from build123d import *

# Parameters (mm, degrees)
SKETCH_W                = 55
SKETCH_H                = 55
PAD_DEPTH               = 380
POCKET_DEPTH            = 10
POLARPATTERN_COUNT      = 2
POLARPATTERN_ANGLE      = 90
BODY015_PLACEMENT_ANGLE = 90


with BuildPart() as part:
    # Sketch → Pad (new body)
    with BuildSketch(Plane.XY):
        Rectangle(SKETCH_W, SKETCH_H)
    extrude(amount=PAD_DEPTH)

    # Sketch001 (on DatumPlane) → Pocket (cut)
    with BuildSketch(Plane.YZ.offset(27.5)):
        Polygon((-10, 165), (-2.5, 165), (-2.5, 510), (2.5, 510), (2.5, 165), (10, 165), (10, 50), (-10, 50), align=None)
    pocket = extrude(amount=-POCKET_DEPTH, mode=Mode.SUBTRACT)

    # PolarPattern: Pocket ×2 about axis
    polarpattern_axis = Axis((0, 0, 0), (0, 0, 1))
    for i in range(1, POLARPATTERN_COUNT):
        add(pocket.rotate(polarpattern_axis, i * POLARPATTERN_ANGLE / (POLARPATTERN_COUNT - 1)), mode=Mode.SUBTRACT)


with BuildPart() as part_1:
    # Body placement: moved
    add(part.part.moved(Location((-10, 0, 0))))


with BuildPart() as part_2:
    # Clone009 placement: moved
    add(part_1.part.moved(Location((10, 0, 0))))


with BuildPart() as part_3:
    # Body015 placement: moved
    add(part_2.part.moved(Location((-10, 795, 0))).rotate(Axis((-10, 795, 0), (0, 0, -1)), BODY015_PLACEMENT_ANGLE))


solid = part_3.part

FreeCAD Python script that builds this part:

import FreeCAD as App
import Part
import Sketcher


def add_polygon(sketch, points):
    """Adds a closed chain of lines whose ends are joined by coincident constraints."""
    first, n = sketch.GeometryCount, len(points)
    for a, b in zip(points, points[1:] + points[:1]):
        sketch.addGeometry(Part.LineSegment(App.Vector(*a, 0), App.Vector(*b, 0)), False)
    for i in range(n):
        sketch.addConstraint(Sketcher.Constraint("Coincident", first + i, 2, first + (i + 1) % n, 1))

doc = App.newDocument("Part")
body = doc.addObject("PartDesign::Body", "Body")

# Sketch on XY plane
sketch1 = doc.addObject("Sketcher::SketchObject", "Sketch")
body.addObject(sketch1)
sketch1.AttachmentSupport = (doc.XY_Plane, [""])
sketch1.MapMode = "FlatFace"
add_polygon(sketch1, [(-28, 28), (-28, -28), (28, -28), (28, 28)])  # lines 0-3
sketch1.addConstraint(Sketcher.Constraint("Vertical", 0))
sketch1.addConstraint(Sketcher.Constraint("Horizontal", 1))
sketch1.addConstraint(Sketcher.Constraint("Vertical", 2))
sketch1.addConstraint(Sketcher.Constraint("Horizontal", 3))
sketch1.addConstraint(Sketcher.Constraint("Symmetric", 0, 2, 2, 2, -1, 1))
sketch1.addConstraint(Sketcher.Constraint("Equal", 3, 0))
sketch1.addConstraint(Sketcher.Constraint("DistanceX", 1, 1, 1, 2, 55.0))
pad1 = doc.addObject("PartDesign::Pad", "Pad")
body.addObject(pad1)
pad1.Profile = sketch1
pad1.Length = 380

# Sketch on YZ plane
sketch2 = doc.addObject("Sketcher::SketchObject", "Sketch001")
body.addObject(sketch2)
sketch2.AttachmentSupport = (doc.YZ_Plane, [""])
sketch2.MapMode = "FlatFace"
sketch2.AttachmentOffset = App.Placement(App.Vector(0, 0, 27.5), App.Rotation())
add_polygon(sketch2, [(-2, 165), (-10, 165), (-10, 50), (10, 50), (10, 165), (2, 165), (2, 510), (-2, 510)])  # lines 0-7
sketch2.addConstraint(Sketcher.Constraint("Horizontal", 0))
sketch2.addConstraint(Sketcher.Constraint("Vertical", 1))
sketch2.addConstraint(Sketcher.Constraint("Horizontal", 2))
sketch2.addConstraint(Sketcher.Constraint("Vertical", 3))
sketch2.addConstraint(Sketcher.Constraint("Horizontal", 4))
sketch2.addConstraint(Sketcher.Constraint("Vertical", 5))
sketch2.addConstraint(Sketcher.Constraint("Horizontal", 6))
sketch2.addConstraint(Sketcher.Constraint("Vertical", 7))
sketch2.addConstraint(Sketcher.Constraint("Symmetric", 0, 2, 3, 2, -2))
sketch2.addConstraint(Sketcher.Constraint("Equal", 0, 4))
sketch2.addConstraint(Sketcher.Constraint("DistanceX", 2, 1, 2, 2, 20.0))
sketch2.addConstraint(Sketcher.Constraint("DistanceX", 6, 2, 6, 1, 5.0))
sketch2.addConstraint(Sketcher.Constraint("DistanceY", 1, 2, 1, 1, 115.0))
sketch2.addConstraint(Sketcher.Constraint("DistanceY", 5, 1, 5, 2, 345.0))
sketch2.addConstraint(Sketcher.Constraint("DistanceY", -1, 1, 0, 2, 165.0))
pocket1 = doc.addObject("PartDesign::Pocket", "Pocket")
body.addObject(pocket1)
pocket1.Profile = sketch2
pocket1.Length = 10
doc.recompute()

polarpattern = doc.addObject("PartDesign::PolarPattern", "PolarPattern")
body.addObject(polarpattern)
polarpattern.Originals = [pocket1]
polarpattern.Axis = (doc.Z_Axis, [""])
polarpattern.Angle = 90
polarpattern.Occurrences = 2
body.Tip = polarpattern
body2 = doc.addObject("PartDesign::Body", "Body001")
doc.recompute()

body.Placement = App.Placement(App.Vector(-10, 0, 0), App.Rotation(App.Vector(0, 0, 1), 0))
boolean = doc.addObject("PartDesign::Boolean", "Boolean")
body2.addObject(boolean)
boolean.Type = "Fuse"
boolean.addObjects([body])
body3 = doc.addObject("PartDesign::Body", "Body002")
doc.recompute()

body2.Placement = App.Placement(App.Vector(10, 0, 0), App.Rotation(App.Vector(0, 0, 1), 0))
boolean2 = doc.addObject("PartDesign::Boolean", "Boolean001")
body3.addObject(boolean2)
boolean2.Type = "Fuse"
boolean2.addObjects([body2])
body4 = doc.addObject("PartDesign::Body", "Body003")
doc.recompute()

body3.Placement = App.Placement(App.Vector(-10, 795, 0), App.Rotation(App.Vector(0, 0, -1), 90))
boolean3 = doc.addObject("PartDesign::Boolean", "Boolean002")
body4.addObject(boolean3)
boolean3.Type = "Fuse"
boolean3.addObjects([body3])

doc.recompute()
